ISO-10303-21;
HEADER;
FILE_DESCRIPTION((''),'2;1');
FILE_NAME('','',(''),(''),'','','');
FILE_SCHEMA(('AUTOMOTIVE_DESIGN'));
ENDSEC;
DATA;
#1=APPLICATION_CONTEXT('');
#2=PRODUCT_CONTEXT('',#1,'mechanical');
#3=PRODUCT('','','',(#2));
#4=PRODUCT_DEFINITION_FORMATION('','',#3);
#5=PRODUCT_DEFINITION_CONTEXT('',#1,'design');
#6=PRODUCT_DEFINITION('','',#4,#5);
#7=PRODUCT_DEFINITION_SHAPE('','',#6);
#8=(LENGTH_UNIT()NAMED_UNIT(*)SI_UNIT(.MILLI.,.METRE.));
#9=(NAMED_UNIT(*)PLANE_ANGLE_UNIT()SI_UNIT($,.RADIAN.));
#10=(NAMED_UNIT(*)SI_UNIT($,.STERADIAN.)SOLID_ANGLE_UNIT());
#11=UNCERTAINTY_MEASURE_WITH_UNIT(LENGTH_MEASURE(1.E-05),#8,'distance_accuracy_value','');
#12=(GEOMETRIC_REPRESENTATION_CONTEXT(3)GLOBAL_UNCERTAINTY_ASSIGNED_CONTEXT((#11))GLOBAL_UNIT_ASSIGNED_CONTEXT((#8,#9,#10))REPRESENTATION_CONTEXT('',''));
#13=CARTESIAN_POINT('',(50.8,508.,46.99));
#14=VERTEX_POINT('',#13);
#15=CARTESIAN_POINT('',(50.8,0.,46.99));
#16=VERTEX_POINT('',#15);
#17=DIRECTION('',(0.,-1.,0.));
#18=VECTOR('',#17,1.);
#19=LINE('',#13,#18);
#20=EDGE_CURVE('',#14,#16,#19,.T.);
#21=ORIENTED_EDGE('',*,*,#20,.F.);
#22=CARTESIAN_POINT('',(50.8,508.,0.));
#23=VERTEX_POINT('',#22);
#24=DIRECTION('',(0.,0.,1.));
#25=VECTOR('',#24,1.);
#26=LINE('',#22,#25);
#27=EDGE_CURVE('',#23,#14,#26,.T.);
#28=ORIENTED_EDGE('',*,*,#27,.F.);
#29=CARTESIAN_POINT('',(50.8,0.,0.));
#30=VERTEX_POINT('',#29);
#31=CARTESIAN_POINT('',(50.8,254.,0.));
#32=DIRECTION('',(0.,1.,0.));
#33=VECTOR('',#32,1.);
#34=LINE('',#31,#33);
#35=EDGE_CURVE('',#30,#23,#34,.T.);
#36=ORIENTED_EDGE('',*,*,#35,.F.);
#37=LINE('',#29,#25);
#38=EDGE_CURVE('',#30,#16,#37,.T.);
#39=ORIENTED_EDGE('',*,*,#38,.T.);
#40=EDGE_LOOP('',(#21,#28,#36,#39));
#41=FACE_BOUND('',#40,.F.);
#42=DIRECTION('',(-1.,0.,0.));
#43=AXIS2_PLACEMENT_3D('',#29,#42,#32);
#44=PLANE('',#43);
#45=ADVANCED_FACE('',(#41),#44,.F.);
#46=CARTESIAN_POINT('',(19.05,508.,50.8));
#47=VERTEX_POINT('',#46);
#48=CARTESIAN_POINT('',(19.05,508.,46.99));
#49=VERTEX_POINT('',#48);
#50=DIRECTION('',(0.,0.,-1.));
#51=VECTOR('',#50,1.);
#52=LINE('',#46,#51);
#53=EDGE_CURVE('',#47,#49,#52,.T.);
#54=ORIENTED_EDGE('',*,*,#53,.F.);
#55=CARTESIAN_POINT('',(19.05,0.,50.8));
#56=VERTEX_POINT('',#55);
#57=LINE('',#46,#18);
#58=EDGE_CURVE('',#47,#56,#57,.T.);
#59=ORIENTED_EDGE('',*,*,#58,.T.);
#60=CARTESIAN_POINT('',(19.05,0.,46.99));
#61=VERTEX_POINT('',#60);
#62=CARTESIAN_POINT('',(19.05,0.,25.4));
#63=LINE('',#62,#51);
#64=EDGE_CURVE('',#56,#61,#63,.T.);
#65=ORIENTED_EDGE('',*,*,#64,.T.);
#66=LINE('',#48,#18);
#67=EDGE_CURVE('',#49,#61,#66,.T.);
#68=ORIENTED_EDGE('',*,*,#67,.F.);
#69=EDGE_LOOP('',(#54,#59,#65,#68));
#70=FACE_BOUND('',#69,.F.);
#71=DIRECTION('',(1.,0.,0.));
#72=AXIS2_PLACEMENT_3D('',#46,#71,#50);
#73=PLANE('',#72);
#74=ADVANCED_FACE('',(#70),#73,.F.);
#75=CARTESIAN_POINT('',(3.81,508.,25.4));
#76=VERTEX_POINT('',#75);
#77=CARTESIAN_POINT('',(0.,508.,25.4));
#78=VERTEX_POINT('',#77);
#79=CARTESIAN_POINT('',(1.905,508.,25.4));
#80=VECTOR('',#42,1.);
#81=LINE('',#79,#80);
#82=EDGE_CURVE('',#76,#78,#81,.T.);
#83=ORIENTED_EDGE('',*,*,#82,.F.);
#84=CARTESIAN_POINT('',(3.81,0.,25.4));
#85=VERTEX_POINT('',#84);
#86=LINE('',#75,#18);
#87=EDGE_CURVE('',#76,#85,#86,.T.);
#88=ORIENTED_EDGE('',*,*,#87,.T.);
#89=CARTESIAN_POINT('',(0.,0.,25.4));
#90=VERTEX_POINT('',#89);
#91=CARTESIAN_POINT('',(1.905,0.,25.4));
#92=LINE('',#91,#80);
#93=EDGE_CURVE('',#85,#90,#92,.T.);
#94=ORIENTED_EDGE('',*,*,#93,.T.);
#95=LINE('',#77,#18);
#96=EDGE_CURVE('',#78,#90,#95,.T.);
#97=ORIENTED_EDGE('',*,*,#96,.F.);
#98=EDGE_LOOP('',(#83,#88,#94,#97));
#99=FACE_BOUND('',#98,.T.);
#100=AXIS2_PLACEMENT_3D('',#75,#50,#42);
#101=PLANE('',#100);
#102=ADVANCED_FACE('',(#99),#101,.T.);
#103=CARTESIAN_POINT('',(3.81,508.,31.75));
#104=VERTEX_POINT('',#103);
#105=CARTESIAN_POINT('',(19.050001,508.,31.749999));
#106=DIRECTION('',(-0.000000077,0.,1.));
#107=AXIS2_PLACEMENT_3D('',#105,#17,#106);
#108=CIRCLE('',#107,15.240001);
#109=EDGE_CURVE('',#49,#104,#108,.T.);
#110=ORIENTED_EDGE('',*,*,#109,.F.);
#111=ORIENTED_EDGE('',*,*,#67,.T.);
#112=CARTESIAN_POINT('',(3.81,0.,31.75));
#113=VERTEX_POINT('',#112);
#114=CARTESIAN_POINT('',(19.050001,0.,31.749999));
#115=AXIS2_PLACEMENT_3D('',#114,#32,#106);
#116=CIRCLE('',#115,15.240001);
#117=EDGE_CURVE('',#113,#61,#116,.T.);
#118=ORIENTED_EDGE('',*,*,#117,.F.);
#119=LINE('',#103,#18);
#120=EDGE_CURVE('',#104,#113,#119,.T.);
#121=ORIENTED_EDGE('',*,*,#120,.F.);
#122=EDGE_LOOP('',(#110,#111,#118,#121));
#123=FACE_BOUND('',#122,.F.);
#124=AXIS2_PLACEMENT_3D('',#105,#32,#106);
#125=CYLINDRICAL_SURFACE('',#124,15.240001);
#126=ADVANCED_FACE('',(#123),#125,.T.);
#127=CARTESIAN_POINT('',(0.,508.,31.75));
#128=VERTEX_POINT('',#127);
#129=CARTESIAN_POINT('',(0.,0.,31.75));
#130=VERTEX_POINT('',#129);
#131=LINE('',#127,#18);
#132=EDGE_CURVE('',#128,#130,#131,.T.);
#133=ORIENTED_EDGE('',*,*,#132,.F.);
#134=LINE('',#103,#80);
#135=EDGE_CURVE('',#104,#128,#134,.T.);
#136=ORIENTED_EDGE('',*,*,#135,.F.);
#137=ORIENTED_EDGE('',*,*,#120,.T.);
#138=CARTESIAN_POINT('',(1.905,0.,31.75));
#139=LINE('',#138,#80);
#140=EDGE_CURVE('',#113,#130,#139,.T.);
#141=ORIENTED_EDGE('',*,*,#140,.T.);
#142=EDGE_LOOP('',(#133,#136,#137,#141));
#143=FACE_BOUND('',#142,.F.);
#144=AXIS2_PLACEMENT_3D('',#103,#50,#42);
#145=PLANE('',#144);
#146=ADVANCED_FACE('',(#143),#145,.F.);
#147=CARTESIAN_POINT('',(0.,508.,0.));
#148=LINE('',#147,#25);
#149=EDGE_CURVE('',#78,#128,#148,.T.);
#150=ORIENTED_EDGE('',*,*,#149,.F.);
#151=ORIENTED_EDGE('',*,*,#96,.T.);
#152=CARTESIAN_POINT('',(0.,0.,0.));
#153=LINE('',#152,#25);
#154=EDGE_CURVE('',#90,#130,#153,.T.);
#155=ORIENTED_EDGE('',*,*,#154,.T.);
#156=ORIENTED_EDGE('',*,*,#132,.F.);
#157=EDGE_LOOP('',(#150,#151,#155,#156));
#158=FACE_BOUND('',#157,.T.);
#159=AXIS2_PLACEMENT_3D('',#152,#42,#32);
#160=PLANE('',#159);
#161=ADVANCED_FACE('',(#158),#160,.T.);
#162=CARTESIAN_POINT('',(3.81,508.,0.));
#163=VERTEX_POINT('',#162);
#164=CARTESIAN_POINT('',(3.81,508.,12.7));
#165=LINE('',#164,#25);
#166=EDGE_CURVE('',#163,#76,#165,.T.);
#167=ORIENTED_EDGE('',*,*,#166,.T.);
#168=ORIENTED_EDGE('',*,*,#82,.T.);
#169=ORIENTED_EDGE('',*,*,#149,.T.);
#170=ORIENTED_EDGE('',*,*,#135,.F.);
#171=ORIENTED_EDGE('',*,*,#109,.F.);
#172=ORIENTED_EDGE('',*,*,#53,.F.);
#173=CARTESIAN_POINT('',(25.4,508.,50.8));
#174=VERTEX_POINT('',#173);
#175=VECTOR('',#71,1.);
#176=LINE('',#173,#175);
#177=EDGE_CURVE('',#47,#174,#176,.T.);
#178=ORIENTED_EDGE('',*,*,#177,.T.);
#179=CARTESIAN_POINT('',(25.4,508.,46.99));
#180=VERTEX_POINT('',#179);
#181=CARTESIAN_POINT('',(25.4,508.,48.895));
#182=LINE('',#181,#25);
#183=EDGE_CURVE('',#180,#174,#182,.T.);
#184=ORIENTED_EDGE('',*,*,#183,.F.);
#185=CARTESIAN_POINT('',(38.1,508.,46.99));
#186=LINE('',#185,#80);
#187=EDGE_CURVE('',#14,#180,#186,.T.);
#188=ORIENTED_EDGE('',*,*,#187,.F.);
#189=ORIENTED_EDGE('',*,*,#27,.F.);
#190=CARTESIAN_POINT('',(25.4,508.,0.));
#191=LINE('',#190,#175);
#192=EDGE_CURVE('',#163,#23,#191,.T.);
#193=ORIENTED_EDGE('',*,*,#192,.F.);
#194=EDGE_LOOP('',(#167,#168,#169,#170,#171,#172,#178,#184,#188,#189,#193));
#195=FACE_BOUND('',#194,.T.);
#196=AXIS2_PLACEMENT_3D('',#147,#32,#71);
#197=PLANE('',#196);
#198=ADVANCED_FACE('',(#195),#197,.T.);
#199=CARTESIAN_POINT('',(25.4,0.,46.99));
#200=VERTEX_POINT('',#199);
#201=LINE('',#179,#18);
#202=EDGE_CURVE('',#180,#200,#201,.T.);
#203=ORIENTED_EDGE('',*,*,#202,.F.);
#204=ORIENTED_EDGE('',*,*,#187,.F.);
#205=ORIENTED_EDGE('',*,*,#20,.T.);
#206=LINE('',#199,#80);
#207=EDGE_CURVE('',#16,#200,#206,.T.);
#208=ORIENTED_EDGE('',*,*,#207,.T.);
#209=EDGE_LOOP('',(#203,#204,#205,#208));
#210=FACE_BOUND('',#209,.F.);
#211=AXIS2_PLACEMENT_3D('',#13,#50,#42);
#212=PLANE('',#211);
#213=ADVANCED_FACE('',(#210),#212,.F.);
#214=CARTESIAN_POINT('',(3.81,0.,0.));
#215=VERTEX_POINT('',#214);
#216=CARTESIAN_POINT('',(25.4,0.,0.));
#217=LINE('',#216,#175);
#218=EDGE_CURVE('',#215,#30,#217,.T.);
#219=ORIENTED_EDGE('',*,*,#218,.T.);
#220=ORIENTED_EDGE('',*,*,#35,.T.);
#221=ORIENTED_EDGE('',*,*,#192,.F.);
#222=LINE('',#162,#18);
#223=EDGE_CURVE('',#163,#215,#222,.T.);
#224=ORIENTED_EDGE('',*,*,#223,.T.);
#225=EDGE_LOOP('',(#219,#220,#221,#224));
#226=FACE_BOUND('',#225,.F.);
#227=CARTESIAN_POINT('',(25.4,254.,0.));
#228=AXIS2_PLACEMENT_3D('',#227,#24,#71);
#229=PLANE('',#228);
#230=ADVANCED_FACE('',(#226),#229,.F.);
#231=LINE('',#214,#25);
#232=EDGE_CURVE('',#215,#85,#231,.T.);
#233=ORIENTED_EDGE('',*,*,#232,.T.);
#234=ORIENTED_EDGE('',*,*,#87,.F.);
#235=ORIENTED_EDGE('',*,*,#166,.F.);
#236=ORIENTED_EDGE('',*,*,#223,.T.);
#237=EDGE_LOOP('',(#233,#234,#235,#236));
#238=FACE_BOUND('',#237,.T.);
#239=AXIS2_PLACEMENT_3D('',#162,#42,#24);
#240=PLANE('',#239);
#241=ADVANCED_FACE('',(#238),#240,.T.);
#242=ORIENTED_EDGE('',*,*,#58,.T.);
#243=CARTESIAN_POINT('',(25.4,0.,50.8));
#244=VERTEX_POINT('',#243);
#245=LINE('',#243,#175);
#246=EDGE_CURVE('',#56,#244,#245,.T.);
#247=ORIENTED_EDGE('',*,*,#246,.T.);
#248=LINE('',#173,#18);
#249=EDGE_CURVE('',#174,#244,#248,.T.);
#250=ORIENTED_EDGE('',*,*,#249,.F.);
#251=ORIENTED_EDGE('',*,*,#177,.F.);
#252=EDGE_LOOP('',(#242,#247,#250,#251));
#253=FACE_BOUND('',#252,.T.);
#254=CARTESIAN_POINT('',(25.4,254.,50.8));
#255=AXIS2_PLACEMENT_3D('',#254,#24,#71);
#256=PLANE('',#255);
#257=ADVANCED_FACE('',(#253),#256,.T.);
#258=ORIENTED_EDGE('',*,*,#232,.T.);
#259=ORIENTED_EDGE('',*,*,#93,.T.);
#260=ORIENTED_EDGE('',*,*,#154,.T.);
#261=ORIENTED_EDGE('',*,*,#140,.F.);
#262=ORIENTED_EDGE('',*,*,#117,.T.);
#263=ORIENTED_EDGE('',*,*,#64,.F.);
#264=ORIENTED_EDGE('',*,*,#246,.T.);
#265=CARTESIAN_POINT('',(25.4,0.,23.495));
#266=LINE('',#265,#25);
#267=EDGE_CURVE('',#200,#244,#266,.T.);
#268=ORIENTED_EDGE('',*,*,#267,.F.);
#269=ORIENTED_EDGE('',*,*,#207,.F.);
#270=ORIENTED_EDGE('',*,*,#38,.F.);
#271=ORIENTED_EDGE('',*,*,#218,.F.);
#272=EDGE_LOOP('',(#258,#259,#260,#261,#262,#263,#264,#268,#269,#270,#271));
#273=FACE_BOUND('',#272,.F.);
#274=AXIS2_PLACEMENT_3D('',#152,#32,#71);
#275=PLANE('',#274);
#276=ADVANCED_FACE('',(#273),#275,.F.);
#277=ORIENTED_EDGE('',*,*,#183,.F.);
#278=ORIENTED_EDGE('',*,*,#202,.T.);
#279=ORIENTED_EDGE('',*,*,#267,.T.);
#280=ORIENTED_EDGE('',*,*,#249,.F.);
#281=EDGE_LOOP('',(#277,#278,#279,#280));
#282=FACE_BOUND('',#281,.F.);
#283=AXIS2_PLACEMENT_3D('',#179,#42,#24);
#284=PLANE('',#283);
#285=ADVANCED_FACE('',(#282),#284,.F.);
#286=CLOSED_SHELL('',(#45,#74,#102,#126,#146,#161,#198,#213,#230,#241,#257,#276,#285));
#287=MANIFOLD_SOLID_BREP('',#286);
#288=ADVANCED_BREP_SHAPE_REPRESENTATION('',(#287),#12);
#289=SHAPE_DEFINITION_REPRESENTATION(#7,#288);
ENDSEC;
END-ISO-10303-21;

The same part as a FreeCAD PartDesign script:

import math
import FreeCAD as App
import Part
import Sketcher

V = App.Vector
Q = App.Units.Quantity


def add_polygon(sketch, points):
    """Adds a closed chain of lines whose ends are joined by coincident constraints."""
    first, n = sketch.GeometryCount, len(points)
    for a, b in zip(points, points[1:] + points[:1]):
        sketch.addGeometry(Part.LineSegment(App.Vector(*a, 0), App.Vector(*b, 0)), False)
    for i in range(n):
        sketch.addConstraint(Sketcher.Constraint("Coincident", first + i, 2, first + (i + 1) % n, 1))

doc = App.newDocument("Part")
params = doc.addObject("Spreadsheet::Sheet", "Params")
for row, (alias, value) in enumerate([
    ("sketch1_width", "2 in"),
    ("sketch1_height", "20 in"),
    ("pad1_length", "2 in"),
    ("sketch2_width", "1 in"),
    ("sketch2_height", "0.15 in"),
    ("sketch3_height", "1 in"),
    ("sketch3_width", "0.15 in"),
    ("sketch4_radius", "0.6 in"),
    ("sketch4_width", "0.75 in"),
], start=1):
    params.set(f"A{row}", alias)
    params.set(f"B{row}", "=" + value)
    params.setAlias(f"B{row}", alias)

body = doc.addObject("PartDesign::Body", "Body")

# Sketch on XY plane
sketch1 = body.newObject("Sketcher::SketchObject", "Sketch")
sketch1.AttachmentSupport = (doc.getObject("XY_Plane"), [""])
sketch1.MapMode = "FlatFace"
add_polygon(sketch1, [(0, 508), (0, 0), (51, 0), (51, 508)])  # lines 0-3
sketch1.addConstraint([
    Sketcher.Constraint("Vertical", 0),
    Sketcher.Constraint("Horizontal", 1),
    Sketcher.Constraint("Vertical", 2),
    Sketcher.Constraint("Horizontal", 3),
    Sketcher.Constraint("Coincident", 0, 2, -1, 1),
    Sketcher.Constraint("DistanceX", 1, 1, 1, 2, Q("2 in")),
    Sketcher.Constraint("DistanceY", 0, 2, 0, 1, Q("20 in")),
])
sketch1.setExpression("Constraints[9]", "Params.sketch1_width")
sketch1.setExpression("Constraints[10]", "Params.sketch1_height")
pad1 = body.newObject("PartDesign::Pad", "Pad")
pad1.Profile = sketch1
pad1.setExpression("Length", "Params.pad1_length")

# Sketch on XZ plane
sketch2 = body.newObject("Sketcher::SketchObject", "Sketch001")
sketch2.AttachmentSupport = (doc.getObject("XZ_Plane"), [""])
sketch2.MapMode = "FlatFace"
sketch2.AttachmentOffset = App.Placement(V(0, 0, -20 * 25.4), App.Rotation())
add_polygon(sketch2, [(50.8, 50.8), (50.8, 47), (25.4, 47), (25.4, 50.8)])  # lines 0-3
sketch2.addConstraint([
    Sketcher.Constraint("Vertical", 0),
    Sketcher.Constraint("Horizontal", 1),
    Sketcher.Constraint("Vertical", 2),
    Sketcher.Constraint("Horizontal", 3),
    Sketcher.Constraint("DistanceX", 1, 2, 1, 1, Q("1 in")),
    Sketcher.Constraint("DistanceX", -1, 1, 0, 2, Q("2 in")),
    Sketcher.Constraint("DistanceY", -1, 1, 2, 2, Q("2 in")),
    Sketcher.Constraint("DistanceY", 0, 2, 0, 1, Q("0.15 in")),
])
sketch2.setExpression("Constraints[8]", "Params.sketch2_width")
sketch2.setExpression("Constraints[11]", "Params.sketch2_height")
pocket1 = body.newObject("PartDesign::Pocket", "Pocket")
pocket1.Profile = sketch2
pocket1.Type = "ThroughAll"
pocket1.Reversed = True

# Sketch on XZ plane
sketch3 = body.newObject("Sketcher::SketchObject", "Sketch002")
sketch3.AttachmentSupport = (doc.getObject("XZ_Plane"), [""])
sketch3.MapMode = "FlatFace"
sketch3.AttachmentOffset = App.Placement(V(0, 0, -20 * 25.4), App.Rotation())
add_polygon(sketch3, [(3.8, 25.4), (3.8, 0), (0, 0), (0, 25.4)])  # lines 0-3
sketch3.addConstraint([
    Sketcher.Constraint("Vertical", 0),
    Sketcher.Constraint("Horizontal", 1),
    Sketcher.Constraint("Vertical", 2),
    Sketcher.Constraint("Horizontal", 3),
    Sketcher.Constraint("Coincident", 1, 2, -1, 1),
    Sketcher.Constraint("DistanceY", 0, 2, 0, 1, Q("1 in")),
    Sketcher.Constraint("DistanceX", 1, 2, 1, 1, Q("0.15 in")),
])
sketch3.setExpression("Constraints[9]", "Params.sketch3_height")
sketch3.setExpression("Constraints[10]", "Params.sketch3_width")
pocket2 = body.newObject("PartDesign::Pocket", "Pocket001")
pocket2.Profile = sketch3
pocket2.Type = "ThroughAll"
pocket2.Reversed = True

# Sketch on XZ plane
sketch4 = body.newObject("Sketcher::SketchObject", "Sketch003")
sketch4.AttachmentSupport = (doc.getObject("XZ_Plane"), [""])
sketch4.MapMode = "FlatFace"
sketch4.AttachmentOffset = App.Placement(V(0, 0, -20 * 25.4), App.Rotation())
sketch4.addGeometry([
    Part.LineSegment(V(0, 50.8, 0), V(19.1, 50.8, 0)),  # 0
    Part.LineSegment(V(19.1, 50.8, 0), V(19.1, 47, 0)),  # 1
    Part.ArcOfCircle(Part.Circle(V(19.1, 31.7, 0), V(0, 0, 1), 15.2), math.radians(90), math.radians(180)),  # 2
    Part.LineSegment(V(3.8, 31.8, 0), V(0, 31.8, 0)),  # 3
    Part.LineSegment(V(0, 31.8, 0), V(0, 50.8, 0)),  # 4
], False)
sketch4.addConstraint([
    Sketcher.Constraint("Coincident", 0, 2, 1, 1),
    Sketcher.Constraint("Coincident", 1, 2, 2, 1),
    Sketcher.Constraint("Coincident", 2, 2, 3, 1),
    Sketcher.Constraint("Coincident", 3, 2, 4, 1),
    Sketcher.Constraint("Coincident", 4, 2, 0, 1),
    Sketcher.Constraint("Horizontal", 0),
    Sketcher.Constraint("Vertical", 1),
    Sketcher.Constraint("Horizontal", 3),
    Sketcher.Constraint("Vertical", 4),
    Sketcher.Constraint("PointOnObject", 3, 2, -2),
    Sketcher.Constraint("Vertical", 2, 3, 0, 2),
    Sketcher.Constraint("Equal", 3, 1),
    Sketcher.Constraint("Equal", 0, 4),
    Sketcher.Constraint("Radius", 2, Q("0.6 in")),
    Sketcher.Constraint("DistanceY", -1, 1, 0, 2, Q("2 in")),
    Sketcher.Constraint("DistanceX", 0, 1, 0, 2, Q("0.75 in")),
])
sketch4.setExpression("Constraints[13]", "Params.sketch4_radius")
sketch4.setExpression("Constraints[15]", "Params.sketch4_width")
pocket3 = body.newObject("PartDesign::Pocket", "Pocket002")
pocket3.Profile = sketch4
pocket3.Type = "ThroughAll"
pocket3.Reversed = True

doc.recompute()
